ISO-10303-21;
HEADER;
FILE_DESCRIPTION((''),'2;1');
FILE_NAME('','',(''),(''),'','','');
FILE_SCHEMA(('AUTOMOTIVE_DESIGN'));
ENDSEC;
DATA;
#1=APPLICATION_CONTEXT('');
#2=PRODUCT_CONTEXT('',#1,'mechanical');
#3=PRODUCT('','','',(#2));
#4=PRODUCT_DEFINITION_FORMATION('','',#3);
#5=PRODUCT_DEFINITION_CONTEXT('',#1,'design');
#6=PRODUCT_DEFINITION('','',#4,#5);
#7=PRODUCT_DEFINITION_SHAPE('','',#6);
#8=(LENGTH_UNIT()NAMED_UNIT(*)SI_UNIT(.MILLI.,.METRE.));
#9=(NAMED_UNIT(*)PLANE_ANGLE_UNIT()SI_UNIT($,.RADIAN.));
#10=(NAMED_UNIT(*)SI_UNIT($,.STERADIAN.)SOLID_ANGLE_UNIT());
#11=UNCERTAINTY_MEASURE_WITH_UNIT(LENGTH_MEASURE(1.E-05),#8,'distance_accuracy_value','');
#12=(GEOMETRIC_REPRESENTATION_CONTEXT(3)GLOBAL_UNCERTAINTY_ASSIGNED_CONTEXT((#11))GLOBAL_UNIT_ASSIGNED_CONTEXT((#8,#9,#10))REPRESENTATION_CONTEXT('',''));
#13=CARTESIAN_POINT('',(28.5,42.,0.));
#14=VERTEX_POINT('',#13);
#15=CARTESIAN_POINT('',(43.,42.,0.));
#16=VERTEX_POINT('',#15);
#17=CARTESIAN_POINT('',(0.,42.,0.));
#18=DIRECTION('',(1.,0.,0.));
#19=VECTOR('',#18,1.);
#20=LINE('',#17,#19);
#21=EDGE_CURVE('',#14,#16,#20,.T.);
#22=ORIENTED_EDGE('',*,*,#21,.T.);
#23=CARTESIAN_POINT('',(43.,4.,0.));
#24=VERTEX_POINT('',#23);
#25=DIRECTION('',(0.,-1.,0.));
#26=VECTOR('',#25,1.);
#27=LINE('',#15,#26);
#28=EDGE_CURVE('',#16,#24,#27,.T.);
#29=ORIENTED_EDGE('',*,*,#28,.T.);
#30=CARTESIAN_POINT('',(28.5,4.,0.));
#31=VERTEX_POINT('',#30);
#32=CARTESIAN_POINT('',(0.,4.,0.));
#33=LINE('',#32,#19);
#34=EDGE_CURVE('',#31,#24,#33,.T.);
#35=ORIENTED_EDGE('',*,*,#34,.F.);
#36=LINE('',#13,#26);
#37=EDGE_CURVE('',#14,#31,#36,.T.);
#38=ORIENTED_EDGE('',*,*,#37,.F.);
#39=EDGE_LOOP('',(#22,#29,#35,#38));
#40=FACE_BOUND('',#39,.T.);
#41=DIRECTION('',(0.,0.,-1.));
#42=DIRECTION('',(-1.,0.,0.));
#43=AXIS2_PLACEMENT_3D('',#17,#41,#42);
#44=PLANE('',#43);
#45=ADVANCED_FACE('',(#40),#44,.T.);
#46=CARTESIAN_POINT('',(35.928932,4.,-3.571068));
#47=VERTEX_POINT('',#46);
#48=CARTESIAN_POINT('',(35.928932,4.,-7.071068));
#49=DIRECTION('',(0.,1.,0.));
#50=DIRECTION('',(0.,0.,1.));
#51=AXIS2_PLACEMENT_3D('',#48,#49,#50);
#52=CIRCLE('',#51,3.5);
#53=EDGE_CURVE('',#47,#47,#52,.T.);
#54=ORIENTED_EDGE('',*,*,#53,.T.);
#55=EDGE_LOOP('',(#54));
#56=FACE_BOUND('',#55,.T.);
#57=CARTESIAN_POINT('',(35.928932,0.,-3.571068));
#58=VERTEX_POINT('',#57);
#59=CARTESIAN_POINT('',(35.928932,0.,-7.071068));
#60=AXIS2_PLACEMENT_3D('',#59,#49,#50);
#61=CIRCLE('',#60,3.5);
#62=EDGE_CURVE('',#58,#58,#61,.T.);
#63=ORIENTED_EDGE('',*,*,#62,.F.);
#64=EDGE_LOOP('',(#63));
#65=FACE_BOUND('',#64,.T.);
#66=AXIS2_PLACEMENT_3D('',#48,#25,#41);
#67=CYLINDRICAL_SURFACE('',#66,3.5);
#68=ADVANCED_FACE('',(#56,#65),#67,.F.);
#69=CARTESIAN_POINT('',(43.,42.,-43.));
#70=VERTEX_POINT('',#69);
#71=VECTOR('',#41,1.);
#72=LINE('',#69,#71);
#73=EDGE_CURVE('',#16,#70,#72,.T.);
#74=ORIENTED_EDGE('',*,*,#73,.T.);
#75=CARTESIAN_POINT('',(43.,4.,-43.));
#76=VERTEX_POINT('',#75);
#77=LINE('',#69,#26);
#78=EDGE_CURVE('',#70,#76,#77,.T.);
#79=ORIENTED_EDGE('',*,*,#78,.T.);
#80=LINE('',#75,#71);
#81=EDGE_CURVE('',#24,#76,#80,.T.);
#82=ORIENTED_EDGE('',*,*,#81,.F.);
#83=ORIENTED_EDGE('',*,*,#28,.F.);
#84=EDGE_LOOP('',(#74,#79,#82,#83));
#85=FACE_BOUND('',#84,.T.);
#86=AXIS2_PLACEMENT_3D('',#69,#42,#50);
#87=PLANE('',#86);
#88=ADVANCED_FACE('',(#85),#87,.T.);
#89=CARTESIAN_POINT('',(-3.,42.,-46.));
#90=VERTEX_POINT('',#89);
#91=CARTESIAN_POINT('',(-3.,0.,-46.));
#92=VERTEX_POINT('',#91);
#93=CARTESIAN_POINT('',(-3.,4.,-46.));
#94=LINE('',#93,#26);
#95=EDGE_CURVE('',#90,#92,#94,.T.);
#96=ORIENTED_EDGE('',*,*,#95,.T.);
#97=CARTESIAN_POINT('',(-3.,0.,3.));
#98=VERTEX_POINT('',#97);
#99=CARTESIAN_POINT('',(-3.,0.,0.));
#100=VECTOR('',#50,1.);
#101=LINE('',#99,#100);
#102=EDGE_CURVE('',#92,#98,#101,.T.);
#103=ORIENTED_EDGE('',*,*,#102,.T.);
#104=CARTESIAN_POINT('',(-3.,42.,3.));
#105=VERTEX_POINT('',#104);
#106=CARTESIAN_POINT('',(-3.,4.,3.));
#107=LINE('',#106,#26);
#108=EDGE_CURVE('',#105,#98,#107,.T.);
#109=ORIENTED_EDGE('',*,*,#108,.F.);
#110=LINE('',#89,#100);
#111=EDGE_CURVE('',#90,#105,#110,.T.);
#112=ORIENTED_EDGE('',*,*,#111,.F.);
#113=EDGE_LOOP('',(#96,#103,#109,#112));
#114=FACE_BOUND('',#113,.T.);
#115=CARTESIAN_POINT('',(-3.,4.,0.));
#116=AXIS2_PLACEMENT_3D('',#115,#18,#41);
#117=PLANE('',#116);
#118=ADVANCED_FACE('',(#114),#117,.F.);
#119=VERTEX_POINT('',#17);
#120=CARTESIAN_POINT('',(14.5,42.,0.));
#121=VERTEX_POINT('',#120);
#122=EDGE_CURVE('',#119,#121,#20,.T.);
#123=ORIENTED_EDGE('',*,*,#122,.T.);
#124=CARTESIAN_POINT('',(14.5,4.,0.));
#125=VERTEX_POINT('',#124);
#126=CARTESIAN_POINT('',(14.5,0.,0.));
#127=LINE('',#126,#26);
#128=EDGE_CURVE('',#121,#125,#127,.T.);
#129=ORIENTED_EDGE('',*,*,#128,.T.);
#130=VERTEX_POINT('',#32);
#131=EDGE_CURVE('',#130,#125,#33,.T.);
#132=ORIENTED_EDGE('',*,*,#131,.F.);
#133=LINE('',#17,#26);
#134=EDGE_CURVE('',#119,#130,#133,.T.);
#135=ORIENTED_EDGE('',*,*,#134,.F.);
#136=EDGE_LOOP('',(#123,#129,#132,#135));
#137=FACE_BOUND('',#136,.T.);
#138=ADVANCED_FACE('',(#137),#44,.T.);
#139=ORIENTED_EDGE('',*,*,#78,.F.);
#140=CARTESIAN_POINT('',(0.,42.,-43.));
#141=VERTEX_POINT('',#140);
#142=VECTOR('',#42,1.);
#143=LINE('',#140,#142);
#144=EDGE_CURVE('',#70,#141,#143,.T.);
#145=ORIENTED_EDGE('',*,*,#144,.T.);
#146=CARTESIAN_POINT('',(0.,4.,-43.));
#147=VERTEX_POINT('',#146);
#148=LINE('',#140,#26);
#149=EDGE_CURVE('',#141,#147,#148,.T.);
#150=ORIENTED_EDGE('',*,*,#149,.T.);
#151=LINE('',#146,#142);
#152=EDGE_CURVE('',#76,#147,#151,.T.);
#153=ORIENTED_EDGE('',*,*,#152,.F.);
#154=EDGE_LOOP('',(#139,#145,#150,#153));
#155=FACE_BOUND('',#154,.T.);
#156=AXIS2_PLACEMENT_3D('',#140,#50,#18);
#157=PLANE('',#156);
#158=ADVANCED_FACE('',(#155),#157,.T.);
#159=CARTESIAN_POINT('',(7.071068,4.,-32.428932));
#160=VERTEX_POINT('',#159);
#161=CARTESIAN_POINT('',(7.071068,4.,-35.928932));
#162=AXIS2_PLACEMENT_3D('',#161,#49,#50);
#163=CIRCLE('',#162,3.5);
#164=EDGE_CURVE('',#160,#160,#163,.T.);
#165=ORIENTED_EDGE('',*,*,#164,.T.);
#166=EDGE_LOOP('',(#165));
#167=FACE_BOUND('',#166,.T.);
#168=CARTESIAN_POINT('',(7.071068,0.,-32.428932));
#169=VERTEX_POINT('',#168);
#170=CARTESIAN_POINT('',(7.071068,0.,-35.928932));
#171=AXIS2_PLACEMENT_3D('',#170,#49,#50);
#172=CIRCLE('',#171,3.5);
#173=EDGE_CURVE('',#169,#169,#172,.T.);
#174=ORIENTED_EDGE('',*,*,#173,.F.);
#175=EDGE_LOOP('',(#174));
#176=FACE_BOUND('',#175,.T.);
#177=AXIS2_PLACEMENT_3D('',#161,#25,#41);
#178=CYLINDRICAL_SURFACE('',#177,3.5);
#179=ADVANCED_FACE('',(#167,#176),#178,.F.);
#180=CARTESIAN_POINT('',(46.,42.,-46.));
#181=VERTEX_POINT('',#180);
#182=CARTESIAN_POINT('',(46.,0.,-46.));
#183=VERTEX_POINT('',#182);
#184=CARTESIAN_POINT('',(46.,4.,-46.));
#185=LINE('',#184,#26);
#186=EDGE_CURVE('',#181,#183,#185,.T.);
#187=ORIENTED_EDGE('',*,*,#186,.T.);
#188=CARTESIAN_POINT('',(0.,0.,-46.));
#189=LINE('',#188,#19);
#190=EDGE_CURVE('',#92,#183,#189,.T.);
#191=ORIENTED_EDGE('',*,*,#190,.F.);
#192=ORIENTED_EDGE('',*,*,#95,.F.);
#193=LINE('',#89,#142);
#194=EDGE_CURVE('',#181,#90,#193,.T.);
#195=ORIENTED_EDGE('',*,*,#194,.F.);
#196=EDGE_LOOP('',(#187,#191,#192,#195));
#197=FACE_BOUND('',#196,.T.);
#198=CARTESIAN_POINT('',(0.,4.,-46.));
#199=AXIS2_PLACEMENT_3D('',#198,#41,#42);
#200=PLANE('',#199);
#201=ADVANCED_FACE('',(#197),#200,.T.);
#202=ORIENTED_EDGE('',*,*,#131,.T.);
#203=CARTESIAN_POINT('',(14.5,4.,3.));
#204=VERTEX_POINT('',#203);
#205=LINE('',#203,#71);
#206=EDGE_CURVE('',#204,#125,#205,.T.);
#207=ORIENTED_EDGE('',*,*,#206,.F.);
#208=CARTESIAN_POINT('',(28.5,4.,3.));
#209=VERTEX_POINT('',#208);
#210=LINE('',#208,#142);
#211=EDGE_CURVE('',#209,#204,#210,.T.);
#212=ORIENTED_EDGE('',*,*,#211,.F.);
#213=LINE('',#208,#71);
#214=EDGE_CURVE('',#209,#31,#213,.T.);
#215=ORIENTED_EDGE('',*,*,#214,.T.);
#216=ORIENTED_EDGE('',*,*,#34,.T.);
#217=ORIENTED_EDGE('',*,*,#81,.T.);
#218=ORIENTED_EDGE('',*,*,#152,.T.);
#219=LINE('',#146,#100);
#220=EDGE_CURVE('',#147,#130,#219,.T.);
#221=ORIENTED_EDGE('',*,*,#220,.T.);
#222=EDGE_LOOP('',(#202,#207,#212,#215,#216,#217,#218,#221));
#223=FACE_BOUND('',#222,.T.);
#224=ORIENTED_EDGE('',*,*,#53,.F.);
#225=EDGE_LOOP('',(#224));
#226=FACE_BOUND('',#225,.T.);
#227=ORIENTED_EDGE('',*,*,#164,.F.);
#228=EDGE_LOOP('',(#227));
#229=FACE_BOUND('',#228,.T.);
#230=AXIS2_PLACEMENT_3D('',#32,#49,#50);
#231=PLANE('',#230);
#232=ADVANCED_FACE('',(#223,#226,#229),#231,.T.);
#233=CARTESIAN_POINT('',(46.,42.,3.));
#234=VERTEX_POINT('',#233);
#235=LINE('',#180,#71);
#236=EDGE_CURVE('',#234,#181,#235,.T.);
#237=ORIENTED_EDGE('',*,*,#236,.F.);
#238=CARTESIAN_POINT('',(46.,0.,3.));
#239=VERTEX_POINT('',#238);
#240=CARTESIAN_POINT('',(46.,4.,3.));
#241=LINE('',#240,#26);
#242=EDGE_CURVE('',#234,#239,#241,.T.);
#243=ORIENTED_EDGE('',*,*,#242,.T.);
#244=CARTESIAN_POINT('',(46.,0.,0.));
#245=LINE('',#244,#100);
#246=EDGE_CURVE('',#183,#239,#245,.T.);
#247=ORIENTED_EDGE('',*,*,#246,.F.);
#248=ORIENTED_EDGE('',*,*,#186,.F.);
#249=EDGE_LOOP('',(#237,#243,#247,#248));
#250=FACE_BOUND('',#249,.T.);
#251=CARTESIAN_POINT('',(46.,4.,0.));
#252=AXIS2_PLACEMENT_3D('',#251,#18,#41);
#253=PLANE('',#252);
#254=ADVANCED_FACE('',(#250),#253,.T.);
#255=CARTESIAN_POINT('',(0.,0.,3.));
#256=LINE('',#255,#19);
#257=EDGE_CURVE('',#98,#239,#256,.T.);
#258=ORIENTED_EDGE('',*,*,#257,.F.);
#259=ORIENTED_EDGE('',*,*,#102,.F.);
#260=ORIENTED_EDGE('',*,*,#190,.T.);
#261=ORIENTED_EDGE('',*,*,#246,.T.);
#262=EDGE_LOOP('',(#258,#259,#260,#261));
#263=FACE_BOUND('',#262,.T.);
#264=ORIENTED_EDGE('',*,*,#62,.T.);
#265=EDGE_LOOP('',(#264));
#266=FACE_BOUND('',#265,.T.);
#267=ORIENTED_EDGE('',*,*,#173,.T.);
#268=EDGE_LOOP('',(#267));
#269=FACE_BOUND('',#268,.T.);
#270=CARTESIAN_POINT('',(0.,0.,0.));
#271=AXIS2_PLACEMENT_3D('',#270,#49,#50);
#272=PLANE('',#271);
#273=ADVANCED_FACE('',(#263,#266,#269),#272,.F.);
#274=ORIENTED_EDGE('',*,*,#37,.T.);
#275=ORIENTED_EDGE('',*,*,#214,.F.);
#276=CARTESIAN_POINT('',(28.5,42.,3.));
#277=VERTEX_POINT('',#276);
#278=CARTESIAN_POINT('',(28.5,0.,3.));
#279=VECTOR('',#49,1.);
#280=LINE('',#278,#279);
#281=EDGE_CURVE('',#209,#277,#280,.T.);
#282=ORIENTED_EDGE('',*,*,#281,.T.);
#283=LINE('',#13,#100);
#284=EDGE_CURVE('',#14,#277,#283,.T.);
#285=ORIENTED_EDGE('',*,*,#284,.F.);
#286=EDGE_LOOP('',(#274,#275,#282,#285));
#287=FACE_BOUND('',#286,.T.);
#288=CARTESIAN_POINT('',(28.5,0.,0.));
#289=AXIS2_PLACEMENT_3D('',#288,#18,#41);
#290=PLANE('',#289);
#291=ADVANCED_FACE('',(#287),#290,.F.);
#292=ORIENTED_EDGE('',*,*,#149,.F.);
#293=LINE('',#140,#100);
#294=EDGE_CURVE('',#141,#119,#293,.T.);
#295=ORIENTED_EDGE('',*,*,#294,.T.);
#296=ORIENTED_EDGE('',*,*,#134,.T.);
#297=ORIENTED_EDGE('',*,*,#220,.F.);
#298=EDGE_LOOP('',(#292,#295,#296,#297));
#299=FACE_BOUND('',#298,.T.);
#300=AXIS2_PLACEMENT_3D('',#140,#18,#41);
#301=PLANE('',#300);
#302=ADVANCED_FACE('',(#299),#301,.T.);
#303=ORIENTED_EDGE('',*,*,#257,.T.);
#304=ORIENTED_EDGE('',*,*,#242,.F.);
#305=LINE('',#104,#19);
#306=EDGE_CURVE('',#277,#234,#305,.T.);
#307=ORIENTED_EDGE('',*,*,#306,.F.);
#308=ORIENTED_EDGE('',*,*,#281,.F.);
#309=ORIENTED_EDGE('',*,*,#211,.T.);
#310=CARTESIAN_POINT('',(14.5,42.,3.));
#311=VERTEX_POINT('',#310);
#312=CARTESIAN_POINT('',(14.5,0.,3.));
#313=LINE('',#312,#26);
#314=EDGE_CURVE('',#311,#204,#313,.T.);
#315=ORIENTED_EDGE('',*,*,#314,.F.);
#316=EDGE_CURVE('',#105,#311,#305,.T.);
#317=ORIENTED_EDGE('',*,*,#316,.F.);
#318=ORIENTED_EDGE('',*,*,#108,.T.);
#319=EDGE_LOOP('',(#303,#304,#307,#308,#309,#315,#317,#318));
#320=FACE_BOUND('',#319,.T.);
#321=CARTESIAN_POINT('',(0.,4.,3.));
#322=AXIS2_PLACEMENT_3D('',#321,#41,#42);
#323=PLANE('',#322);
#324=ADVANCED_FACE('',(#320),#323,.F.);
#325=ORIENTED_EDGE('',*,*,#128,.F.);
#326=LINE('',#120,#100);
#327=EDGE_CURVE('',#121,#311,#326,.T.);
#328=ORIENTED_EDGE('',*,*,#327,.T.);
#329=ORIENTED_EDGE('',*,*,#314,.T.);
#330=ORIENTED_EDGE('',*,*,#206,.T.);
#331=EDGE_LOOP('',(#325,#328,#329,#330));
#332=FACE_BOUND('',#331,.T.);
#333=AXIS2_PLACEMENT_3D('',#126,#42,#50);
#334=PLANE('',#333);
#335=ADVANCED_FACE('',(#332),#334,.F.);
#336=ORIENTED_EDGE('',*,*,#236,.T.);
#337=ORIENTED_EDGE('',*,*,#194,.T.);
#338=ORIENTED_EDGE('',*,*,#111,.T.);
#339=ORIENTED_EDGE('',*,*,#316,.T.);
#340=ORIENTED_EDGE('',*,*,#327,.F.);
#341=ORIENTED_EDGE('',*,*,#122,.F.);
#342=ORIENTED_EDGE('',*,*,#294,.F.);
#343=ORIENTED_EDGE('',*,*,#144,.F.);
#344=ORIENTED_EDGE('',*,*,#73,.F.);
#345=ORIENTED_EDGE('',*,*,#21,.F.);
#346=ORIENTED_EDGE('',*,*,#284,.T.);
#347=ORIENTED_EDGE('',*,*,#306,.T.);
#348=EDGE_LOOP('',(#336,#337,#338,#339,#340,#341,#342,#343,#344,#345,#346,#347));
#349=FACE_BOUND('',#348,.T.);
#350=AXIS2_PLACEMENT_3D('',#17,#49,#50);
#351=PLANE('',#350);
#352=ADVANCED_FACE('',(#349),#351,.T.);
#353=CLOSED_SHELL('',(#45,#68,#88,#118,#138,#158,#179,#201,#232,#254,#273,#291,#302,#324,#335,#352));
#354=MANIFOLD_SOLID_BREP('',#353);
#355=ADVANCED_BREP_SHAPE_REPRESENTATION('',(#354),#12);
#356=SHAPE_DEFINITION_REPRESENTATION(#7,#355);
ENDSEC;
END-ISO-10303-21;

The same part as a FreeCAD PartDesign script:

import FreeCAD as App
import Part
import Sketcher


def add_polygon(sketch, points):
    """Adds a closed chain of lines whose ends are joined by coincident constraints."""
    first, n = sketch.GeometryCount, len(points)
    for a, b in zip(points, points[1:] + points[:1]):
        sketch.addGeometry(Part.LineSegment(App.Vector(*a, 0), App.Vector(*b, 0)), False)
    for i in range(n):
        sketch.addConstraint(Sketcher.Constraint("Coincident", first + i, 2, first + (i + 1) % n, 1))

doc = App.newDocument("Part")
params = doc.addObject("Spreadsheet::Sheet", "Params")
for row, (alias, value) in enumerate([
    ("sketch1_diameter", "7 mm"),
    ("sketch1_width", "49 mm"),
    ("pad1_length", "4 mm"),
    ("sketch2_width", "49 mm"),
    ("sketch2_width2", "43 mm"),
    ("pad2_length", "38 mm"),
    ("sketch3_width", "14 mm"),
    ("sketch3_height", "42 mm"),
    ("pocket1_length", "3 mm"),
    ("sketch4_width", "14 mm"),
    ("sketch4_height", "4 mm"),
    ("pad3_length", "3 mm"),
], start=1):
    params.set(f"A{row}", alias)
    params.set(f"B{row}", "=" + value)
    params.setAlias(f"B{row}", alias)

body = doc.addObject("PartDesign::Body", "Body")

# Sketch on XZ plane
sketch1 = body.newObject("Sketcher::SketchObject", "Sketch")
sketch1.AttachmentSupport = (doc.getObject("XZ_Plane"), [""])
sketch1.MapMode = "FlatFace"
add_polygon(sketch1, [(-3, -46), (-3, 3), (46, 3), (46, -46)])  # lines 0-3
sketch1.addGeometry(Part.Circle(App.Vector(35.928932, -7.071068, 0), App.Vector(0, 0, 1), 3.5), False)  # 4
sketch1.addGeometry(Part.Circle(App.Vector(7.071068, -35.928932, 0), App.Vector(0, 0, 1), 3.5), False)  # 5
sketch1.addConstraint([
    Sketcher.Constraint("Vertical", 0),
    Sketcher.Constraint("Horizontal", 1),
    Sketcher.Constraint("Vertical", 2),
    Sketcher.Constraint("Horizontal", 3),
    Sketcher.Constraint("Equal", 4, 5),
    Sketcher.Constraint("Equal", 3, 0),
    Sketcher.Constraint("Diameter", 4, 7.0),
    Sketcher.Constraint("DistanceX", 1, 1, 1, 2, 49.0),
    Sketcher.Constraint("DistanceX", 0, 2, -1, 1, 3.0),
    Sketcher.Constraint("DistanceY", -1, 1, 0, 2, 3.0),
    Sketcher.Constraint("DistanceX", -1, 1, 4, 3, 35.928932),
    Sketcher.Constraint("DistanceY", 4, 3, -1, 1, 7.071068),
    Sketcher.Constraint("DistanceX", -1, 1, 5, 3, 7.071068),
    Sketcher.Constraint("DistanceY", 5, 3, -1, 1, 35.928932),
])
sketch1.setExpression("Constraints[10]", "Params.sketch1_diameter")
sketch1.setExpression("Constraints[11]", "Params.sketch1_width")
pad1 = body.newObject("PartDesign::Pad", "Pad")
pad1.Profile = sketch1
pad1.setExpression("Length", "Params.pad1_length")
pad1.Reversed = True

# Sketch on XZ plane
sketch2 = body.newObject("Sketcher::SketchObject", "Sketch001")
sketch2.AttachmentSupport = (doc.getObject("XZ_Plane"), [""])
sketch2.MapMode = "FlatFace"
sketch2.AttachmentOffset = App.Placement(App.Vector(0, 0, -4), App.Rotation())
add_polygon(sketch2, [(-3, -46), (-3, 3), (46, 3), (46, -46)])  # lines 0-3
add_polygon(sketch2, [(43, 0), (0, 0), (0, -43), (43, -43)])  # lines 4-7
sketch2.addConstraint([
    Sketcher.Constraint("Vertical", 0),
    Sketcher.Constraint("Horizontal", 1),
    Sketcher.Constraint("Vertical", 2),
    Sketcher.Constraint("Horizontal", 3),
    Sketcher.Constraint("Horizontal", 4),
    Sketcher.Constraint("Vertical", 5),
    Sketcher.Constraint("Horizontal", 6),
    Sketcher.Constraint("Vertical", 7),
    Sketcher.Constraint("Coincident", 4, 2, -1, 1),
    Sketcher.Constraint("Equal", 3, 0),
    Sketcher.Constraint("Equal", 6, 5),
    Sketcher.Constraint("DistanceX", 1, 1, 1, 2, 49.0),
    Sketcher.Constraint("DistanceX", 4, 2, 4, 1, 43.0),
    Sketcher.Constraint("DistanceX", 0, 2, -1, 1, 3.0),
    Sketcher.Constraint("DistanceY", -1, 1, 0, 2, 3.0),
])
sketch2.setExpression("Constraints[19]", "Params.sketch2_width")
sketch2.setExpression("Constraints[20]", "Params.sketch2_width2")
pad2 = body.newObject("PartDesign::Pad", "Pad001")
pad2.Profile = sketch2
pad2.setExpression("Length", "Params.pad2_length")
pad2.Reversed = True

# Sketch on XY plane
sketch3 = body.newObject("Sketcher::SketchObject", "Sketch002")
sketch3.AttachmentSupport = (doc.getObject("XY_Plane"), [""])
sketch3.MapMode = "FlatFace"
sketch3.AttachmentOffset = App.Placement(App.Vector(0, 0, 3), App.Rotation())
add_polygon(sketch3, [(14.5, 42), (14.5, 0), (28.5, 0), (28.5, 42)])  # lines 0-3
sketch3.addConstraint([
    Sketcher.Constraint("Vertical", 0),
    Sketcher.Constraint("Horizontal", 1),
    Sketcher.Constraint("Vertical", 2),
    Sketcher.Constraint("Horizontal", 3),
    Sketcher.Constraint("PointOnObject", 0, 2, -1),
    Sketcher.Constraint("DistanceX", 1, 1, 1, 2, 14.0),
    Sketcher.Constraint("DistanceY", 0, 2, 0, 1, 42.0),
    Sketcher.Constraint("DistanceX", -1, 1, 0, 2, 14.5),
])
sketch3.setExpression("Constraints[9]", "Params.sketch3_width")
sketch3.setExpression("Constraints[10]", "Params.sketch3_height")
pocket1 = body.newObject("PartDesign::Pocket", "Pocket")
pocket1.Profile = sketch3
pocket1.setExpression("Length", "Params.pocket1_length")

# Sketch on XY plane
sketch4 = body.newObject("Sketcher::SketchObject", "Sketch003")
sketch4.AttachmentSupport = (doc.getObject("XY_Plane"), [""])
sketch4.MapMode = "FlatFace"
add_polygon(sketch4, [(14.5, 4), (14.5, 0), (28.5, 0), (28.5, 4)])  # lines 0-3
sketch4.addConstraint([
    Sketcher.Constraint("Vertical", 0),
    Sketcher.Constraint("Horizontal", 1),
    Sketcher.Constraint("Vertical", 2),
    Sketcher.Constraint("Horizontal", 3),
    Sketcher.Constraint("PointOnObject", 0, 2, -1),
    Sketcher.Constraint("DistanceX", 1, 1, 1, 2, 14.0),
    Sketcher.Constraint("DistanceY", 0, 2, 0, 1, 4.0),
    Sketcher.Constraint("DistanceX", -1, 1, 0, 2, 14.5),
])
sketch4.setExpression("Constraints[9]", "Params.sketch4_width")
sketch4.setExpression("Constraints[10]", "Params.sketch4_height")
pad3 = body.newObject("PartDesign::Pad", "Pad002")
pad3.Profile = sketch4
pad3.setExpression("Length", "Params.pad3_length")

doc.recompute()
